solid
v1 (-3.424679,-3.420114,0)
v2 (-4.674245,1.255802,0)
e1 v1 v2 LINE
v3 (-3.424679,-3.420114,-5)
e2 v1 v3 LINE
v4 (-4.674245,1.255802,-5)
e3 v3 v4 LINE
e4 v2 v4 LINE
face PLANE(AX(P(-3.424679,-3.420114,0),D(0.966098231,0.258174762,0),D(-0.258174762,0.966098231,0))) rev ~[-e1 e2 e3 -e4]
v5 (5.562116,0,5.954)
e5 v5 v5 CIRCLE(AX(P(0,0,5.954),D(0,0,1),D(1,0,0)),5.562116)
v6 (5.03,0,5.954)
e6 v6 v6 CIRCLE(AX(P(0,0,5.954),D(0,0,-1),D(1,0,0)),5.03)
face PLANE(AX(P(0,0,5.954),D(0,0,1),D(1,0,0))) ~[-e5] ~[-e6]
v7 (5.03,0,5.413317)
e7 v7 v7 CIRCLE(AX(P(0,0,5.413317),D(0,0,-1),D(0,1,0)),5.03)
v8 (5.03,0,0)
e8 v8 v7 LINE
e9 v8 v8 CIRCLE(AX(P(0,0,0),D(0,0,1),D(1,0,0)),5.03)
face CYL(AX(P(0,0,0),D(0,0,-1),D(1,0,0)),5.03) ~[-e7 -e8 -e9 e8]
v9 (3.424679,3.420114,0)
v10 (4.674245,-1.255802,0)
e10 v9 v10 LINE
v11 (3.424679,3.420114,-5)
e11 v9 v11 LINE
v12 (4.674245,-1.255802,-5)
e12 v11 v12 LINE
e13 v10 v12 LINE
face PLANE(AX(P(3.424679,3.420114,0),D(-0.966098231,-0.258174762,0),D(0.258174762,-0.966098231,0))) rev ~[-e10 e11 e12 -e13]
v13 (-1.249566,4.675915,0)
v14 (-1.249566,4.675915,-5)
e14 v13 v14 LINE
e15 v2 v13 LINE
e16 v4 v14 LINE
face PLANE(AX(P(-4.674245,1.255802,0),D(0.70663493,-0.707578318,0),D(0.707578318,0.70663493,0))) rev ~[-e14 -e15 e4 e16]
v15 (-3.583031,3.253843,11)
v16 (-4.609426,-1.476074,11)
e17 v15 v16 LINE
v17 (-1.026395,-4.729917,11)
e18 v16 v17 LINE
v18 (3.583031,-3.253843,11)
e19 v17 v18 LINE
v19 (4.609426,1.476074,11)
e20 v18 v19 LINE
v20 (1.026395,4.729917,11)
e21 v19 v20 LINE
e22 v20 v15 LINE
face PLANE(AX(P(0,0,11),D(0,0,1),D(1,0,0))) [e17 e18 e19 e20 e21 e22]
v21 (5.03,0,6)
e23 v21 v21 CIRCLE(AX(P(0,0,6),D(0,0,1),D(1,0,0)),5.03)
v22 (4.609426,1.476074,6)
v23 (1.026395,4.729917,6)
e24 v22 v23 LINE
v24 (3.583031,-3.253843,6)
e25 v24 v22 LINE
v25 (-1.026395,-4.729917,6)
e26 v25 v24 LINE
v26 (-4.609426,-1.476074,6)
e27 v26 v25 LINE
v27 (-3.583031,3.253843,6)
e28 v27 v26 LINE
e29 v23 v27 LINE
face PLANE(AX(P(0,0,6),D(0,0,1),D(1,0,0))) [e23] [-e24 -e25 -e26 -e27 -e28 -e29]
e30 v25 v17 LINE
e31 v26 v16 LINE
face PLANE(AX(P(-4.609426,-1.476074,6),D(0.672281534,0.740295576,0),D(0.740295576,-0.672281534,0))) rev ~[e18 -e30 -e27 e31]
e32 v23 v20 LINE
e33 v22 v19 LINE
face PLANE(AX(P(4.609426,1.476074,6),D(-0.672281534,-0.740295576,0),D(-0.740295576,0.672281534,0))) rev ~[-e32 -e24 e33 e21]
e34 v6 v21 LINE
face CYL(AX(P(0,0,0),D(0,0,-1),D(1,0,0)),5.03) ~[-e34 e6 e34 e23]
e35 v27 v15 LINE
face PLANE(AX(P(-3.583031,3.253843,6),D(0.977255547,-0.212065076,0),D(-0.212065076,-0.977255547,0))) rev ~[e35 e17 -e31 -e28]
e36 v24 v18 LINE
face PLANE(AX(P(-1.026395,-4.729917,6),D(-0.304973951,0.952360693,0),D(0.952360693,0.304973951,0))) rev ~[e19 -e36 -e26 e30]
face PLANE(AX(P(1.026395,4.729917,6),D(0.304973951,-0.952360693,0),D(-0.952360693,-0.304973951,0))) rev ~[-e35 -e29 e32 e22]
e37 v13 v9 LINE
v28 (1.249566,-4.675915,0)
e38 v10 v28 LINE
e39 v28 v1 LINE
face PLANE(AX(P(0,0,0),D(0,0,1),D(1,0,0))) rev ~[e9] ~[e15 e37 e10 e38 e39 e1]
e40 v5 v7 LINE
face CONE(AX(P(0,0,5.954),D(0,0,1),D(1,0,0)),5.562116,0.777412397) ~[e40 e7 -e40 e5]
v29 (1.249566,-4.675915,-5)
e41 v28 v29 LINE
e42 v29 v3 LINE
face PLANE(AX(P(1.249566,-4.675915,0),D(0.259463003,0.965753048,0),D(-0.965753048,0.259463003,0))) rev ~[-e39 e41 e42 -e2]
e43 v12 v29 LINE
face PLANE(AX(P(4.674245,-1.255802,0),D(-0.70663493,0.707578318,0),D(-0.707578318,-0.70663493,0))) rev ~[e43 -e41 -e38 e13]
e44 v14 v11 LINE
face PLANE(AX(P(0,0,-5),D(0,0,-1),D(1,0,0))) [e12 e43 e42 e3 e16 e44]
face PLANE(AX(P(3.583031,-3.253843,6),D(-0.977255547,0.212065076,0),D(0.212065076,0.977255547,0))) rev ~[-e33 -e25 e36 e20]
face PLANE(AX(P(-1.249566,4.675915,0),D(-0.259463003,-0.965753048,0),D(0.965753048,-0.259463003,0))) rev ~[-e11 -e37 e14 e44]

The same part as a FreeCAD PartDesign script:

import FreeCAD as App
import Part
import Sketcher

doc = App.newDocument("Part")
params = doc.addObject("Spreadsheet::Sheet", "Params")
for row, (alias, value) in enumerate([
    ("sketch1_diameter", "10.06 mm"),
    ("pad1_length", "6 mm"),
    ("sketch2_height", "0.75 mm"),
    ("revolution_angle", "360 deg"),
    ("sketch3_length", "4.84 mm"),
    ("pad2_length", "5 mm"),
    ("sketch4_length", "4.840001 mm"),
    ("pad3_length", "5 mm"),
], start=1):
    params.set(f"A{row}", alias)
    params.set(f"B{row}", "=" + value)
    params.setAlias(f"B{row}", alias)

body = doc.addObject("PartDesign::Body", "Body")

# Sketch on XY plane
sketch1 = doc.addObject("Sketcher::SketchObject", "Sketch")
body.addObject(sketch1)
sketch1.AttachmentSupport = (doc.XY_Plane, [""])
sketch1.MapMode = "FlatFace"
sketch1.addGeometry(Part.Circle(App.Vector(0, 0, 0), App.Vector(0, 0, 1), 5.03), False)
sketch1.addConstraint([
    Sketcher.Constraint("Coincident", 0, 3, -1, 1),
    Sketcher.Constraint("Diameter", 0, 10.06),
])
sketch1.setExpression("Constraints[1]", "Params.sketch1_diameter")
pad1 = doc.addObject("PartDesign::Pad", "Pad")
body.addObject(pad1)
pad1.Profile = sketch1
pad1.setExpression("Length", "Params.pad1_length")

# Sketch on XZ plane
sketch2 = doc.addObject("Sketcher::SketchObject", "Sketch001")
body.addObject(sketch2)
sketch2.AttachmentSupport = (doc.XZ_Plane, [""])
sketch2.MapMode = "FlatFace"
sketch2.addGeometry([
    Part.LineSegment(App.Vector(5.562116, 5.954, 0), App.Vector(4.824, 5.954, 0)),
    Part.LineSegment(App.Vector(4.824, 5.954, 0), App.Vector(4.824, 5.204, 0)),
    Part.LineSegment(App.Vector(4.824, 5.204, 0), App.Vector(5.562116, 5.954, 0)),
], False)
sketch2.addConstraint([
    Sketcher.Constraint("Coincident", 0, 2, 1, 1),
    Sketcher.Constraint("Coincident", 1, 2, 2, 1),
    Sketcher.Constraint("Coincident", 2, 2, 0, 1),
    Sketcher.Constraint("Horizontal", 0),
    Sketcher.Constraint("Vertical", 1),
    Sketcher.Constraint("DistanceY", 1, 2, 1, 1, 0.75),
    Sketcher.Constraint("DistanceX", -1, 1, 0, 2, 4.824),
    Sketcher.Constraint("DistanceY", -1, 1, 0, 2, 5.954),
    Sketcher.Constraint("Distance", 2, 1.05229),
])
sketch2.setExpression("Constraints[5]", "Params.sketch2_height")
revolution = doc.addObject("PartDesign::Revolution", "Revolution")
body.addObject(revolution)
revolution.Profile = sketch2
revolution.ReferenceAxis = (sketch2, ["V_Axis"])
revolution.setExpression("Angle", "Params.revolution_angle")

# Sketch on XY plane
sketch3 = doc.addObject("Sketcher::SketchObject", "Sketch002")
body.addObject(sketch3)
sketch3.AttachmentSupport = (doc.XY_Plane, [""])
sketch3.MapMode = "FlatFace"
sketch3.AttachmentOffset = App.Placement(App.Vector(0, 0, 6), App.Rotation())
sketch3.addGeometry([
    Part.LineSegment(App.Vector(3.583031, -3.253843, 0), App.Vector(4.609426, 1.476074, 0)),  # 0
    Part.LineSegment(App.Vector(4.609426, 1.476074, 0), App.Vector(1.026395, 4.729917, 0)),  # 1
    Part.LineSegment(App.Vector(1.026395, 4.729917, 0), App.Vector(-3.583031, 3.253843, 0)),  # 2
    Part.LineSegment(App.Vector(-3.583031, 3.253843, 0), App.Vector(-4.609426, -1.476074, 0)),  # 3
    Part.LineSegment(App.Vector(-4.609426, -1.476074, 0), App.Vector(-1.026395, -4.729917, 0)),  # 4
    Part.LineSegment(App.Vector(-1.026395, -4.729917, 0), App.Vector(3.583031, -3.253843, 0)),  # 5
], False)
sketch3.addConstraint([
    Sketcher.Constraint("Coincident", 0, 2, 1, 1),
    Sketcher.Constraint("Coincident", 1, 2, 2, 1),
    Sketcher.Constraint("Coincident", 2, 2, 3, 1),
    Sketcher.Constraint("Coincident", 3, 2, 4, 1),
    Sketcher.Constraint("Coincident", 4, 2, 5, 1),
    Sketcher.Constraint("Coincident", 5, 2, 0, 1),
    Sketcher.Constraint("Symmetric", 0, 2, 3, 2, -1, 1),
    Sketcher.Constraint("Symmetric", 1, 2, 4, 2, -1, 1),
    Sketcher.Constraint("Symmetric", 2, 2, 5, 2, -1, 1),
    Sketcher.Constraint("Equal", 0, 1),
    Sketcher.Constraint("Equal", 1, 2),
    Sketcher.Constraint("Distance", 0, 4.84),
    Sketcher.Constraint("DistanceX", 2, 2, -1, 1, 3.583031),
    Sketcher.Constraint("DistanceX", 1, 2, 0, 2, 3.583031),
    Sketcher.Constraint("DistanceY", 0, 2, 2, 2, 1.777769),
])
sketch3.setExpression("Constraints[11]", "Params.sketch3_length")
pad2 = doc.addObject("PartDesign::Pad", "Pad001")
body.addObject(pad2)
pad2.Profile = sketch3
pad2.setExpression("Length", "Params.pad2_length")

# Sketch on XY plane
sketch4 = doc.addObject("Sketcher::SketchObject", "Sketch003")
body.addObject(sketch4)
sketch4.AttachmentSupport = (doc.XY_Plane, [""])
sketch4.MapMode = "FlatFace"
sketch4.addGeometry([
    Part.LineSegment(App.Vector(3.424679, 3.420114, 0), App.Vector(4.674245, -1.255802, 0)),  # 0
    Part.LineSegment(App.Vector(4.674245, -1.255802, 0), App.Vector(1.249566, -4.675915, 0)),  # 1
    Part.LineSegment(App.Vector(1.249566, -4.675915, 0), App.Vector(-3.424679, -3.420114, 0)),  # 2
    Part.LineSegment(App.Vector(-3.424679, -3.420114, 0), App.Vector(-4.674245, 1.255802, 0)),  # 3
    Part.LineSegment(App.Vector(-4.674245, 1.255802, 0), App.Vector(-1.249566, 4.675915, 0)),  # 4
    Part.LineSegment(App.Vector(-1.249566, 4.675915, 0), App.Vector(3.424679, 3.420114, 0)),  # 5
], False)
sketch4.addConstraint([
    Sketcher.Constraint("Coincident", 0, 2, 1, 1),
    Sketcher.Constraint("Coincident", 1, 2, 2, 1),
    Sketcher.Constraint("Coincident", 2, 2, 3, 1),
    Sketcher.Constraint("Coincident", 3, 2, 4, 1),
    Sketcher.Constraint("Coincident", 4, 2, 5, 1),
    Sketcher.Constraint("Coincident", 5, 2, 0, 1),
    Sketcher.Constraint("Symmetric", 0, 2, 3, 2, -1, 1),
    Sketcher.Constraint("Symmetric", 1, 2, 4, 2, -1, 1),
    Sketcher.Constraint("Symmetric", 2, 2, 5, 2, -1, 1),
    Sketcher.Constraint("Equal", 0, 1),
    Sketcher.Constraint("Equal", 1, 2),
    Sketcher.Constraint("Distance", 0, 4.840001),
    Sketcher.Constraint("DistanceY", 1, 2, 2, 2, 1.255801),
    Sketcher.Constraint("DistanceX", 2, 2, -1, 1, 3.424679),
    Sketcher.Constraint("DistanceX", 1, 2, 0, 2, 3.424679),
])
sketch4.setExpression("Constraints[11]", "Params.sketch4_length")
pad3 = doc.addObject("PartDesign::Pad", "Pad002")
body.addObject(pad3)
pad3.Profile = sketch4
pad3.setExpression("Length", "Params.pad3_length")
pad3.Reversed = True

doc.recompute()
